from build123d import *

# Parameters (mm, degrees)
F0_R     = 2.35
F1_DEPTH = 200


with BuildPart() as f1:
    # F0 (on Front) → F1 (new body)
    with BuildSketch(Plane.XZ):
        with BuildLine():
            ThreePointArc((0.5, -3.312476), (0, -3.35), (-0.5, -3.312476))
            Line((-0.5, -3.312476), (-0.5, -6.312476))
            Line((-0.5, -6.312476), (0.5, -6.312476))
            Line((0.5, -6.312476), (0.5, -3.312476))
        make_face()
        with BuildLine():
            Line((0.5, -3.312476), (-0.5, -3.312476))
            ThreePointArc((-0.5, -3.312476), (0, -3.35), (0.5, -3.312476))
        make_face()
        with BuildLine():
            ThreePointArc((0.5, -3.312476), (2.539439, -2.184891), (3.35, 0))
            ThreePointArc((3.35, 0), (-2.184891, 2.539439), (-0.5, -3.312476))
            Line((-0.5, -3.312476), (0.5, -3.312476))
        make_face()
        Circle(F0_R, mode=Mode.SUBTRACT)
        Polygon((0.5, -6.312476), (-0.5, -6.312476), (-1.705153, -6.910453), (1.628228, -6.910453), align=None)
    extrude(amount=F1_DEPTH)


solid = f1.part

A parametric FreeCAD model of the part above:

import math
import FreeCAD as App
import Part
import Sketcher

V = App.Vector
Q = App.Units.Quantity

doc = App.newDocument("Part")
params = doc.addObject("Spreadsheet::Sheet", "Params")
for row, (alias, value) in enumerate([
    ("sketch1_diameter", "4.7 mm"),
    ("sketch1_height", "3 mm"),
    ("sketch1_radius", "3.35 mm"),
    ("pad1_length", "200 mm"),
], start=1):
    params.set(f"A{row}", alias)
    params.set(f"B{row}", "=" + value)
    params.setAlias(f"B{row}", alias)

body = doc.addObject("PartDesign::Body", "Body")

sketch1 = doc.addObject("Sketcher::SketchObject", "Sketch")
body.addObject(sketch1)
sketch1.AttachmentSupport = (doc.XZ_Plane, [""])
sketch1.MapMode = "FlatFace"
sketch1.addGeometry([
    Part.LineSegment(V(-0.5, -3.312476, 0), V(-0.5, -6.312476, 0)),
    Part.LineSegment(V(-0.5, -6.312476, 0), V(-1.705153, -6.910453, 0)),
    Part.LineSegment(V(-1.705153, -6.910453, 0), V(1.628228, -6.910453, 0)),
    Part.LineSegment(V(1.628228, -6.910453, 0), V(0.5, -6.312476, 0)),
    Part.LineSegment(V(0.5, -6.312476, 0), V(0.5, -3.312476, 0)),
    Part.ArcOfCircle(Part.Circle(V(0, 0, 0), V(0, 0, 1), 3.35), math.radians(-81.416325), math.radians(-0.000001)),
    Part.ArcOfCircle(Part.Circle(V(0, 0, 0), V(0, 0, 1), 3.35), math.radians(-0.000004), math.radians(261.416315)),
    Part.Circle(V(0, 0, 0), V(0, 0, 1), 2.35),
], False)
sketch1.addConstraint([
    Sketcher.Constraint("Coincident", 0, 2, 1, 1),
    Sketcher.Constraint("Coincident", 1, 2, 2, 1),
    Sketcher.Constraint("Coincident", 2, 2, 3, 1),
    Sketcher.Constraint("Coincident", 3, 2, 4, 1),
    Sketcher.Constraint("Coincident", 4, 2, 5, 1),
    Sketcher.Constraint("Tangent", 5, 2, 6, 1),
    Sketcher.Constraint("Coincident", 6, 2, 0, 1),
    Sketcher.Constraint("Vertical", 0),
    Sketcher.Constraint("Horizontal", 2),
    Sketcher.Constraint("Vertical", 4),
    Sketcher.Constraint("Coincident", 5, 3, -1, 1),
    Sketcher.Constraint("Coincident", 7, 3, -1, 1),
    Sketcher.Constraint("Equal", 5, 6),
    Sketcher.Constraint("Symmetric", 0, 2, 3, 2, -2),
    Sketcher.Constraint("PointOnObject", 5, 2, -1),
    Sketcher.Constraint("Diameter", 7, Q("4.7 mm")),
    Sketcher.Constraint("DistanceY", 0, 2, 0, 1, Q("3 mm")),
    Sketcher.Constraint("Radius", 5, Q("3.35 mm")),
    Sketcher.Constraint("DistanceX", 0, 2, 3, 2, Q("1 mm")),
    Sketcher.Constraint("Distance", 3, Q("1.276901 mm")),
    Sketcher.Constraint("DistanceX", 2, 1, 2, 2, Q("3.333381 mm")),
    Sketcher.Constraint("Distance", 1, Q("1.345351 mm")),
])
sketch1.setExpression("Constraints[15]", "Params.sketch1_diameter")
sketch1.setExpression("Constraints[16]", "Params.sketch1_height")
sketch1.setExpression("Constraints[17]", "Params.sketch1_radius")
pad1 = doc.addObject("PartDesign::Pad", "Pad")
body.addObject(pad1)
pad1.Profile = sketch1
pad1.setExpression("Length", "Params.pad1_length")

doc.recompute()
